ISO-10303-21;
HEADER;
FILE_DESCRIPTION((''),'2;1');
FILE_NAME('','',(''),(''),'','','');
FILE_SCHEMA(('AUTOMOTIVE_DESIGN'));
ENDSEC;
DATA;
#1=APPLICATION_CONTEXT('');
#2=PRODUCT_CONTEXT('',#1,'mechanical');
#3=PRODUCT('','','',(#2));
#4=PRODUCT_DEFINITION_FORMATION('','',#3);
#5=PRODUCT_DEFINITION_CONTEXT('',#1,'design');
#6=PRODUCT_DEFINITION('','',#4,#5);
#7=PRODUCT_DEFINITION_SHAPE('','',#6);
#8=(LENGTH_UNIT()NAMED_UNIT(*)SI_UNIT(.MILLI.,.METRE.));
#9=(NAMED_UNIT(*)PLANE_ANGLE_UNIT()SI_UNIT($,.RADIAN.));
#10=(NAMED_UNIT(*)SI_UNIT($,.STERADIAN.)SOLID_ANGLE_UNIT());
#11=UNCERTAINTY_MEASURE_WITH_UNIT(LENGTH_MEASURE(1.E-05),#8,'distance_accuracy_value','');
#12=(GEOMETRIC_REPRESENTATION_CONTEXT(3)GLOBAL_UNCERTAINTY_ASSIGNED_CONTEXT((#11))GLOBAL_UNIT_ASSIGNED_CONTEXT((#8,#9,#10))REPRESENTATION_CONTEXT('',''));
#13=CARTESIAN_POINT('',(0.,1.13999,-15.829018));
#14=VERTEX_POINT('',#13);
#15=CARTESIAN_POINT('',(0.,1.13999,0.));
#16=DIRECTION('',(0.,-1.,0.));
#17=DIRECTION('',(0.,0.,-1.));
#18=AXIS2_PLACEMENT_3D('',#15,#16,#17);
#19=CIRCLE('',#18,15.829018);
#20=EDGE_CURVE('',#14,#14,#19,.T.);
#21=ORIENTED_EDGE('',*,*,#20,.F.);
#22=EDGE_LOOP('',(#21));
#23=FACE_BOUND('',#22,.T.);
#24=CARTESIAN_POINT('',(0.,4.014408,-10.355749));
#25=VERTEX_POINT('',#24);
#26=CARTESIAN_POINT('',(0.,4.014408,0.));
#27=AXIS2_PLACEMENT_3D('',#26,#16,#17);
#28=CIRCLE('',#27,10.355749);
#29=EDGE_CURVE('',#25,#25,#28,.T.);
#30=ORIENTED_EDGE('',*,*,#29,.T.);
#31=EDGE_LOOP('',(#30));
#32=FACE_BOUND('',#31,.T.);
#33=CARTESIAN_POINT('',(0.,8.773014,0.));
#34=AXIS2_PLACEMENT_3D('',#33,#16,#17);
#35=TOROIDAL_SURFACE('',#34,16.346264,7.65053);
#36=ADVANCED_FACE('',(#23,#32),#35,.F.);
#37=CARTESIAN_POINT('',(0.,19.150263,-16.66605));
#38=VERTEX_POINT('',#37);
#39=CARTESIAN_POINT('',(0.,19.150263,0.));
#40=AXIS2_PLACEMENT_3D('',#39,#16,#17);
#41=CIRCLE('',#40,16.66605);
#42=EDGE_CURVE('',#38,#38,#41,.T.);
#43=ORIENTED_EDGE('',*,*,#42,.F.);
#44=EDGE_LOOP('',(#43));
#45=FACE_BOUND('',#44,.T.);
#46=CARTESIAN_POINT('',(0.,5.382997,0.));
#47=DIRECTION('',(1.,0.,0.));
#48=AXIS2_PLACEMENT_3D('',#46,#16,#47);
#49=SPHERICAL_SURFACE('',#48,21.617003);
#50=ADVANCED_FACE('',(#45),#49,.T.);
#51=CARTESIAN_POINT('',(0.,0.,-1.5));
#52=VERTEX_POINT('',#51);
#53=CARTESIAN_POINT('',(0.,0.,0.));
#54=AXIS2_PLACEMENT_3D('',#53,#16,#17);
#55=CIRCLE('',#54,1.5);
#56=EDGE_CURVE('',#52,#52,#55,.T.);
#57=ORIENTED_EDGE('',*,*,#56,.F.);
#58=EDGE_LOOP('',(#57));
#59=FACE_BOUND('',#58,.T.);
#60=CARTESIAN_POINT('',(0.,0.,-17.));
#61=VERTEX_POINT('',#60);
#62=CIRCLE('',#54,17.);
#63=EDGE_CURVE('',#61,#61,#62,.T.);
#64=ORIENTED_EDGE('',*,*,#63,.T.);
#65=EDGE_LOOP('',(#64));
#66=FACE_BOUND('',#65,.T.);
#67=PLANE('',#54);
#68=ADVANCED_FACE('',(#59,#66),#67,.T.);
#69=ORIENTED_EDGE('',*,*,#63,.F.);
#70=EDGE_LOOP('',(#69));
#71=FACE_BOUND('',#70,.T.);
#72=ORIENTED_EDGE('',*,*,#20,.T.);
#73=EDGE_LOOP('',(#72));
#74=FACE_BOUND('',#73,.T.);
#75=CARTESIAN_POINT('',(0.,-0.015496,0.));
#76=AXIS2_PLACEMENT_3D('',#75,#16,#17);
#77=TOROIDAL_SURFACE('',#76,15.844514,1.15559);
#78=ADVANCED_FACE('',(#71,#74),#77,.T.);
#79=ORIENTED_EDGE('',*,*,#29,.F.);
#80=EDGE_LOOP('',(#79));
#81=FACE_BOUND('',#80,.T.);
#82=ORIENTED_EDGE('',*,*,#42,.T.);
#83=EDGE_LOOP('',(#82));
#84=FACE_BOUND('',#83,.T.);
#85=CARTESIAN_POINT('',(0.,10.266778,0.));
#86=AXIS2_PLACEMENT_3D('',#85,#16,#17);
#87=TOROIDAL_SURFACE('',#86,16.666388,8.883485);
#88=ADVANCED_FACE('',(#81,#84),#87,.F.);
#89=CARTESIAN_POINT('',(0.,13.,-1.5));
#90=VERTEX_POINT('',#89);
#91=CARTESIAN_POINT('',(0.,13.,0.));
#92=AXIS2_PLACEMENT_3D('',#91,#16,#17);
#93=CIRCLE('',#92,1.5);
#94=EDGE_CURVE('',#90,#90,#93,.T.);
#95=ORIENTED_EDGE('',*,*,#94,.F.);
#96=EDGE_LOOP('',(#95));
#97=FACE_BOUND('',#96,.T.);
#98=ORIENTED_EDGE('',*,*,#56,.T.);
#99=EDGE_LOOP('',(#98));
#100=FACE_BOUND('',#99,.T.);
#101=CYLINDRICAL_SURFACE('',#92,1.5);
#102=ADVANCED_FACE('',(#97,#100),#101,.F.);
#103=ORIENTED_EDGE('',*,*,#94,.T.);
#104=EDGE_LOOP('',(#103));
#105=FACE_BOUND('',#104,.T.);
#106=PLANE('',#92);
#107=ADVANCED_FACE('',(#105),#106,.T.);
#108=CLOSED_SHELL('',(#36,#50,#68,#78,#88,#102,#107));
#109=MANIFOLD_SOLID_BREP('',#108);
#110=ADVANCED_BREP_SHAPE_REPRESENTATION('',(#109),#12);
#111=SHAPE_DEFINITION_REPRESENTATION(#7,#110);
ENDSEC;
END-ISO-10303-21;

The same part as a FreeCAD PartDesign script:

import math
import FreeCAD as App
import Part
import Sketcher

doc = App.newDocument("Part")
body = doc.addObject("PartDesign::Body", "Body")

# Sketch on XY plane
sketch1 = body.newObject("Sketcher::SketchObject", "Sketch")
sketch1.AttachmentSupport = (doc.getObject("XY_Plane"), [""])
sketch1.MapMode = "FlatFace"
sketch1.addGeometry(Part.LineSegment(App.Vector(0, 27, 0), App.Vector(0, 0, 0)), False)
sketch1.addGeometry(Part.LineSegment(App.Vector(0, 0, 0), App.Vector(17, 0, 0)), False)
sketch1.addGeometry(Part.ArcOfCircle(Part.Circle(App.Vector(15.8, 0, 0), App.Vector(0, 0, 1), 1.2), math.radians(1), math.radians(91)), False)
sketch1.addGeometry(Part.ArcOfCircle(Part.Circle(App.Vector(16.3, 8.8, 0), App.Vector(0, 0, 1), 7.7), math.radians(-142), math.radians(-94)), False)
sketch1.addGeometry(Part.ArcOfCircle(Part.Circle(App.Vector(16.7, 10.3, 0), App.Vector(0, 0, 1), 8.9), math.radians(90), math.radians(225)), False)
sketch1.addGeometry(Part.ArcOfCircle(Part.Circle(App.Vector(0, 5.4, 0), App.Vector(0, 0, 1), 21.6), math.radians(40), math.radians(90)), False)
sketch1.addConstraint(Sketcher.Constraint("Coincident", 0, 2, 1, 1))
sketch1.addConstraint(Sketcher.Constraint("Coincident", 1, 2, 2, 1))
sketch1.addConstraint(Sketcher.Constraint("Coincident", 2, 2, 3, 2))
sketch1.addConstraint(Sketcher.Constraint("Coincident", 3, 1, 4, 2))
sketch1.addConstraint(Sketcher.Constraint("Coincident", 4, 1, 5, 1))
sketch1.addConstraint(Sketcher.Constraint("Coincident", 5, 2, 0, 1))
sketch1.addConstraint(Sketcher.Constraint("Vertical", 0))
sketch1.addConstraint(Sketcher.Constraint("Horizontal", 1))
sketch1.addConstraint(Sketcher.Constraint("Coincident", 0, 2, -1, 1))
sketch1.addConstraint(Sketcher.Constraint("PointOnObject", 5, 3, -2))
sketch1.addConstraint(Sketcher.Constraint("DistanceX", 1, 1, 1, 2, 17.0))
sketch1.addConstraint(Sketcher.Constraint("DistanceY", 0, 2, 0, 1, 27.0))
sketch1.addConstraint(Sketcher.Constraint("Radius", 2, 1.15559))
sketch1.addConstraint(Sketcher.Constraint("Radius", 3, 7.65053))
sketch1.addConstraint(Sketcher.Constraint("Radius", 4, 8.883485))
sketch1.addConstraint(Sketcher.Constraint("Radius", 5, 21.617003))
sketch1.addConstraint(Sketcher.Constraint("DistanceX", 3, 1, 4, 1, 6.310301))
sketch1.addConstraint(Sketcher.Constraint("DistanceX", -1, 1, 4, 3, 16.666388))
sketch1.addConstraint(Sketcher.Constraint("DistanceX", -1, 1, 2, 2, 15.829018))
sketch1.addConstraint(Sketcher.Constraint("DistanceY", -1, 1, 2, 2, 1.13999))
sketch1.addConstraint(Sketcher.Constraint("DistanceX", -1, 1, 3, 1, 10.355749))
revolution = body.newObject("PartDesign::Revolution", "Revolution")
revolution.Profile = sketch1
revolution.ReferenceAxis = (sketch1, ["V_Axis"])
revolution.Angle = 360

# Sketch on XZ plane
sketch2 = body.newObject("Sketcher::SketchObject", "Sketch001")
sketch2.AttachmentSupport = (doc.getObject("XZ_Plane"), [""])
sketch2.MapMode = "FlatFace"
sketch2.addGeometry(Part.Circle(App.Vector(0, 0, 0), App.Vector(0, 0, 1), 1.5), False)
sketch2.addConstraint(Sketcher.Constraint("Coincident", 0, 3, -1, 1))
sketch2.addConstraint(Sketcher.Constraint("Diameter", 0, 3.0))
pocket1 = body.newObject("PartDesign::Pocket", "Pocket")
pocket1.Profile = sketch2
pocket1.Length = 13

doc.recompute()
